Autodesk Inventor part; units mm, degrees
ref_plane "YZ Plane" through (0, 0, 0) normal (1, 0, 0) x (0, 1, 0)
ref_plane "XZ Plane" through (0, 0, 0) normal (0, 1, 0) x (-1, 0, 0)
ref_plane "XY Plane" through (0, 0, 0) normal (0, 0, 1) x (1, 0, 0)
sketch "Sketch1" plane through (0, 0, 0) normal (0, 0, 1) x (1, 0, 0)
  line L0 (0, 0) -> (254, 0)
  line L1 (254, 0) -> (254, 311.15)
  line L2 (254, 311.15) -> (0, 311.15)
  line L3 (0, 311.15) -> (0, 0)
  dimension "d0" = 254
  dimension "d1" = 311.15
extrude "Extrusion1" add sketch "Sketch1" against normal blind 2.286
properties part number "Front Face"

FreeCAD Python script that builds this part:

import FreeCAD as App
import Part
import Sketcher
Q = App.Units.Quantity


def add_polygon(sketch, points):
    """Adds a closed chain of lines whose ends are joined by coincident constraints."""
    first, n = sketch.GeometryCount, len(points)
    for a, b in zip(points, points[1:] + points[:1]):
        sketch.addGeometry(Part.LineSegment(App.Vector(*a, 0), App.Vector(*b, 0)), False)
    for i in range(n):
        sketch.addConstraint(Sketcher.Constraint("Coincident", first + i, 2, first + (i + 1) % n, 1))

doc = App.newDocument("Part")
body = doc.addObject("PartDesign::Body", "Body")

sketch1 = body.newObject("Sketcher::SketchObject", "Sketch")
sketch1.AttachmentSupport = (doc.getObject("XY_Plane"), [""])
sketch1.MapMode = "FlatFace"
add_polygon(sketch1, [(0, 311), (0, 0), (254, 0), (254, 311)])
sketch1.addConstraint([
    Sketcher.Constraint("Vertical", 0),
    Sketcher.Constraint("Horizontal", 1),
    Sketcher.Constraint("Vertical", 2),
    Sketcher.Constraint("Horizontal", 3),
    Sketcher.Constraint("Coincident", 0, 2, -1, 1),
    Sketcher.Constraint("DistanceX", 1, 1, 1, 2, Q("10 in")),
    Sketcher.Constraint("DistanceY", 0, 2, 0, 1, Q("12.25 in")),
])
pad1 = body.newObject("PartDesign::Pad", "Pad")
pad1.Profile = sketch1
pad1.Length = Q("0.09 in")
pad1.Reversed = True

doc.recompute()
